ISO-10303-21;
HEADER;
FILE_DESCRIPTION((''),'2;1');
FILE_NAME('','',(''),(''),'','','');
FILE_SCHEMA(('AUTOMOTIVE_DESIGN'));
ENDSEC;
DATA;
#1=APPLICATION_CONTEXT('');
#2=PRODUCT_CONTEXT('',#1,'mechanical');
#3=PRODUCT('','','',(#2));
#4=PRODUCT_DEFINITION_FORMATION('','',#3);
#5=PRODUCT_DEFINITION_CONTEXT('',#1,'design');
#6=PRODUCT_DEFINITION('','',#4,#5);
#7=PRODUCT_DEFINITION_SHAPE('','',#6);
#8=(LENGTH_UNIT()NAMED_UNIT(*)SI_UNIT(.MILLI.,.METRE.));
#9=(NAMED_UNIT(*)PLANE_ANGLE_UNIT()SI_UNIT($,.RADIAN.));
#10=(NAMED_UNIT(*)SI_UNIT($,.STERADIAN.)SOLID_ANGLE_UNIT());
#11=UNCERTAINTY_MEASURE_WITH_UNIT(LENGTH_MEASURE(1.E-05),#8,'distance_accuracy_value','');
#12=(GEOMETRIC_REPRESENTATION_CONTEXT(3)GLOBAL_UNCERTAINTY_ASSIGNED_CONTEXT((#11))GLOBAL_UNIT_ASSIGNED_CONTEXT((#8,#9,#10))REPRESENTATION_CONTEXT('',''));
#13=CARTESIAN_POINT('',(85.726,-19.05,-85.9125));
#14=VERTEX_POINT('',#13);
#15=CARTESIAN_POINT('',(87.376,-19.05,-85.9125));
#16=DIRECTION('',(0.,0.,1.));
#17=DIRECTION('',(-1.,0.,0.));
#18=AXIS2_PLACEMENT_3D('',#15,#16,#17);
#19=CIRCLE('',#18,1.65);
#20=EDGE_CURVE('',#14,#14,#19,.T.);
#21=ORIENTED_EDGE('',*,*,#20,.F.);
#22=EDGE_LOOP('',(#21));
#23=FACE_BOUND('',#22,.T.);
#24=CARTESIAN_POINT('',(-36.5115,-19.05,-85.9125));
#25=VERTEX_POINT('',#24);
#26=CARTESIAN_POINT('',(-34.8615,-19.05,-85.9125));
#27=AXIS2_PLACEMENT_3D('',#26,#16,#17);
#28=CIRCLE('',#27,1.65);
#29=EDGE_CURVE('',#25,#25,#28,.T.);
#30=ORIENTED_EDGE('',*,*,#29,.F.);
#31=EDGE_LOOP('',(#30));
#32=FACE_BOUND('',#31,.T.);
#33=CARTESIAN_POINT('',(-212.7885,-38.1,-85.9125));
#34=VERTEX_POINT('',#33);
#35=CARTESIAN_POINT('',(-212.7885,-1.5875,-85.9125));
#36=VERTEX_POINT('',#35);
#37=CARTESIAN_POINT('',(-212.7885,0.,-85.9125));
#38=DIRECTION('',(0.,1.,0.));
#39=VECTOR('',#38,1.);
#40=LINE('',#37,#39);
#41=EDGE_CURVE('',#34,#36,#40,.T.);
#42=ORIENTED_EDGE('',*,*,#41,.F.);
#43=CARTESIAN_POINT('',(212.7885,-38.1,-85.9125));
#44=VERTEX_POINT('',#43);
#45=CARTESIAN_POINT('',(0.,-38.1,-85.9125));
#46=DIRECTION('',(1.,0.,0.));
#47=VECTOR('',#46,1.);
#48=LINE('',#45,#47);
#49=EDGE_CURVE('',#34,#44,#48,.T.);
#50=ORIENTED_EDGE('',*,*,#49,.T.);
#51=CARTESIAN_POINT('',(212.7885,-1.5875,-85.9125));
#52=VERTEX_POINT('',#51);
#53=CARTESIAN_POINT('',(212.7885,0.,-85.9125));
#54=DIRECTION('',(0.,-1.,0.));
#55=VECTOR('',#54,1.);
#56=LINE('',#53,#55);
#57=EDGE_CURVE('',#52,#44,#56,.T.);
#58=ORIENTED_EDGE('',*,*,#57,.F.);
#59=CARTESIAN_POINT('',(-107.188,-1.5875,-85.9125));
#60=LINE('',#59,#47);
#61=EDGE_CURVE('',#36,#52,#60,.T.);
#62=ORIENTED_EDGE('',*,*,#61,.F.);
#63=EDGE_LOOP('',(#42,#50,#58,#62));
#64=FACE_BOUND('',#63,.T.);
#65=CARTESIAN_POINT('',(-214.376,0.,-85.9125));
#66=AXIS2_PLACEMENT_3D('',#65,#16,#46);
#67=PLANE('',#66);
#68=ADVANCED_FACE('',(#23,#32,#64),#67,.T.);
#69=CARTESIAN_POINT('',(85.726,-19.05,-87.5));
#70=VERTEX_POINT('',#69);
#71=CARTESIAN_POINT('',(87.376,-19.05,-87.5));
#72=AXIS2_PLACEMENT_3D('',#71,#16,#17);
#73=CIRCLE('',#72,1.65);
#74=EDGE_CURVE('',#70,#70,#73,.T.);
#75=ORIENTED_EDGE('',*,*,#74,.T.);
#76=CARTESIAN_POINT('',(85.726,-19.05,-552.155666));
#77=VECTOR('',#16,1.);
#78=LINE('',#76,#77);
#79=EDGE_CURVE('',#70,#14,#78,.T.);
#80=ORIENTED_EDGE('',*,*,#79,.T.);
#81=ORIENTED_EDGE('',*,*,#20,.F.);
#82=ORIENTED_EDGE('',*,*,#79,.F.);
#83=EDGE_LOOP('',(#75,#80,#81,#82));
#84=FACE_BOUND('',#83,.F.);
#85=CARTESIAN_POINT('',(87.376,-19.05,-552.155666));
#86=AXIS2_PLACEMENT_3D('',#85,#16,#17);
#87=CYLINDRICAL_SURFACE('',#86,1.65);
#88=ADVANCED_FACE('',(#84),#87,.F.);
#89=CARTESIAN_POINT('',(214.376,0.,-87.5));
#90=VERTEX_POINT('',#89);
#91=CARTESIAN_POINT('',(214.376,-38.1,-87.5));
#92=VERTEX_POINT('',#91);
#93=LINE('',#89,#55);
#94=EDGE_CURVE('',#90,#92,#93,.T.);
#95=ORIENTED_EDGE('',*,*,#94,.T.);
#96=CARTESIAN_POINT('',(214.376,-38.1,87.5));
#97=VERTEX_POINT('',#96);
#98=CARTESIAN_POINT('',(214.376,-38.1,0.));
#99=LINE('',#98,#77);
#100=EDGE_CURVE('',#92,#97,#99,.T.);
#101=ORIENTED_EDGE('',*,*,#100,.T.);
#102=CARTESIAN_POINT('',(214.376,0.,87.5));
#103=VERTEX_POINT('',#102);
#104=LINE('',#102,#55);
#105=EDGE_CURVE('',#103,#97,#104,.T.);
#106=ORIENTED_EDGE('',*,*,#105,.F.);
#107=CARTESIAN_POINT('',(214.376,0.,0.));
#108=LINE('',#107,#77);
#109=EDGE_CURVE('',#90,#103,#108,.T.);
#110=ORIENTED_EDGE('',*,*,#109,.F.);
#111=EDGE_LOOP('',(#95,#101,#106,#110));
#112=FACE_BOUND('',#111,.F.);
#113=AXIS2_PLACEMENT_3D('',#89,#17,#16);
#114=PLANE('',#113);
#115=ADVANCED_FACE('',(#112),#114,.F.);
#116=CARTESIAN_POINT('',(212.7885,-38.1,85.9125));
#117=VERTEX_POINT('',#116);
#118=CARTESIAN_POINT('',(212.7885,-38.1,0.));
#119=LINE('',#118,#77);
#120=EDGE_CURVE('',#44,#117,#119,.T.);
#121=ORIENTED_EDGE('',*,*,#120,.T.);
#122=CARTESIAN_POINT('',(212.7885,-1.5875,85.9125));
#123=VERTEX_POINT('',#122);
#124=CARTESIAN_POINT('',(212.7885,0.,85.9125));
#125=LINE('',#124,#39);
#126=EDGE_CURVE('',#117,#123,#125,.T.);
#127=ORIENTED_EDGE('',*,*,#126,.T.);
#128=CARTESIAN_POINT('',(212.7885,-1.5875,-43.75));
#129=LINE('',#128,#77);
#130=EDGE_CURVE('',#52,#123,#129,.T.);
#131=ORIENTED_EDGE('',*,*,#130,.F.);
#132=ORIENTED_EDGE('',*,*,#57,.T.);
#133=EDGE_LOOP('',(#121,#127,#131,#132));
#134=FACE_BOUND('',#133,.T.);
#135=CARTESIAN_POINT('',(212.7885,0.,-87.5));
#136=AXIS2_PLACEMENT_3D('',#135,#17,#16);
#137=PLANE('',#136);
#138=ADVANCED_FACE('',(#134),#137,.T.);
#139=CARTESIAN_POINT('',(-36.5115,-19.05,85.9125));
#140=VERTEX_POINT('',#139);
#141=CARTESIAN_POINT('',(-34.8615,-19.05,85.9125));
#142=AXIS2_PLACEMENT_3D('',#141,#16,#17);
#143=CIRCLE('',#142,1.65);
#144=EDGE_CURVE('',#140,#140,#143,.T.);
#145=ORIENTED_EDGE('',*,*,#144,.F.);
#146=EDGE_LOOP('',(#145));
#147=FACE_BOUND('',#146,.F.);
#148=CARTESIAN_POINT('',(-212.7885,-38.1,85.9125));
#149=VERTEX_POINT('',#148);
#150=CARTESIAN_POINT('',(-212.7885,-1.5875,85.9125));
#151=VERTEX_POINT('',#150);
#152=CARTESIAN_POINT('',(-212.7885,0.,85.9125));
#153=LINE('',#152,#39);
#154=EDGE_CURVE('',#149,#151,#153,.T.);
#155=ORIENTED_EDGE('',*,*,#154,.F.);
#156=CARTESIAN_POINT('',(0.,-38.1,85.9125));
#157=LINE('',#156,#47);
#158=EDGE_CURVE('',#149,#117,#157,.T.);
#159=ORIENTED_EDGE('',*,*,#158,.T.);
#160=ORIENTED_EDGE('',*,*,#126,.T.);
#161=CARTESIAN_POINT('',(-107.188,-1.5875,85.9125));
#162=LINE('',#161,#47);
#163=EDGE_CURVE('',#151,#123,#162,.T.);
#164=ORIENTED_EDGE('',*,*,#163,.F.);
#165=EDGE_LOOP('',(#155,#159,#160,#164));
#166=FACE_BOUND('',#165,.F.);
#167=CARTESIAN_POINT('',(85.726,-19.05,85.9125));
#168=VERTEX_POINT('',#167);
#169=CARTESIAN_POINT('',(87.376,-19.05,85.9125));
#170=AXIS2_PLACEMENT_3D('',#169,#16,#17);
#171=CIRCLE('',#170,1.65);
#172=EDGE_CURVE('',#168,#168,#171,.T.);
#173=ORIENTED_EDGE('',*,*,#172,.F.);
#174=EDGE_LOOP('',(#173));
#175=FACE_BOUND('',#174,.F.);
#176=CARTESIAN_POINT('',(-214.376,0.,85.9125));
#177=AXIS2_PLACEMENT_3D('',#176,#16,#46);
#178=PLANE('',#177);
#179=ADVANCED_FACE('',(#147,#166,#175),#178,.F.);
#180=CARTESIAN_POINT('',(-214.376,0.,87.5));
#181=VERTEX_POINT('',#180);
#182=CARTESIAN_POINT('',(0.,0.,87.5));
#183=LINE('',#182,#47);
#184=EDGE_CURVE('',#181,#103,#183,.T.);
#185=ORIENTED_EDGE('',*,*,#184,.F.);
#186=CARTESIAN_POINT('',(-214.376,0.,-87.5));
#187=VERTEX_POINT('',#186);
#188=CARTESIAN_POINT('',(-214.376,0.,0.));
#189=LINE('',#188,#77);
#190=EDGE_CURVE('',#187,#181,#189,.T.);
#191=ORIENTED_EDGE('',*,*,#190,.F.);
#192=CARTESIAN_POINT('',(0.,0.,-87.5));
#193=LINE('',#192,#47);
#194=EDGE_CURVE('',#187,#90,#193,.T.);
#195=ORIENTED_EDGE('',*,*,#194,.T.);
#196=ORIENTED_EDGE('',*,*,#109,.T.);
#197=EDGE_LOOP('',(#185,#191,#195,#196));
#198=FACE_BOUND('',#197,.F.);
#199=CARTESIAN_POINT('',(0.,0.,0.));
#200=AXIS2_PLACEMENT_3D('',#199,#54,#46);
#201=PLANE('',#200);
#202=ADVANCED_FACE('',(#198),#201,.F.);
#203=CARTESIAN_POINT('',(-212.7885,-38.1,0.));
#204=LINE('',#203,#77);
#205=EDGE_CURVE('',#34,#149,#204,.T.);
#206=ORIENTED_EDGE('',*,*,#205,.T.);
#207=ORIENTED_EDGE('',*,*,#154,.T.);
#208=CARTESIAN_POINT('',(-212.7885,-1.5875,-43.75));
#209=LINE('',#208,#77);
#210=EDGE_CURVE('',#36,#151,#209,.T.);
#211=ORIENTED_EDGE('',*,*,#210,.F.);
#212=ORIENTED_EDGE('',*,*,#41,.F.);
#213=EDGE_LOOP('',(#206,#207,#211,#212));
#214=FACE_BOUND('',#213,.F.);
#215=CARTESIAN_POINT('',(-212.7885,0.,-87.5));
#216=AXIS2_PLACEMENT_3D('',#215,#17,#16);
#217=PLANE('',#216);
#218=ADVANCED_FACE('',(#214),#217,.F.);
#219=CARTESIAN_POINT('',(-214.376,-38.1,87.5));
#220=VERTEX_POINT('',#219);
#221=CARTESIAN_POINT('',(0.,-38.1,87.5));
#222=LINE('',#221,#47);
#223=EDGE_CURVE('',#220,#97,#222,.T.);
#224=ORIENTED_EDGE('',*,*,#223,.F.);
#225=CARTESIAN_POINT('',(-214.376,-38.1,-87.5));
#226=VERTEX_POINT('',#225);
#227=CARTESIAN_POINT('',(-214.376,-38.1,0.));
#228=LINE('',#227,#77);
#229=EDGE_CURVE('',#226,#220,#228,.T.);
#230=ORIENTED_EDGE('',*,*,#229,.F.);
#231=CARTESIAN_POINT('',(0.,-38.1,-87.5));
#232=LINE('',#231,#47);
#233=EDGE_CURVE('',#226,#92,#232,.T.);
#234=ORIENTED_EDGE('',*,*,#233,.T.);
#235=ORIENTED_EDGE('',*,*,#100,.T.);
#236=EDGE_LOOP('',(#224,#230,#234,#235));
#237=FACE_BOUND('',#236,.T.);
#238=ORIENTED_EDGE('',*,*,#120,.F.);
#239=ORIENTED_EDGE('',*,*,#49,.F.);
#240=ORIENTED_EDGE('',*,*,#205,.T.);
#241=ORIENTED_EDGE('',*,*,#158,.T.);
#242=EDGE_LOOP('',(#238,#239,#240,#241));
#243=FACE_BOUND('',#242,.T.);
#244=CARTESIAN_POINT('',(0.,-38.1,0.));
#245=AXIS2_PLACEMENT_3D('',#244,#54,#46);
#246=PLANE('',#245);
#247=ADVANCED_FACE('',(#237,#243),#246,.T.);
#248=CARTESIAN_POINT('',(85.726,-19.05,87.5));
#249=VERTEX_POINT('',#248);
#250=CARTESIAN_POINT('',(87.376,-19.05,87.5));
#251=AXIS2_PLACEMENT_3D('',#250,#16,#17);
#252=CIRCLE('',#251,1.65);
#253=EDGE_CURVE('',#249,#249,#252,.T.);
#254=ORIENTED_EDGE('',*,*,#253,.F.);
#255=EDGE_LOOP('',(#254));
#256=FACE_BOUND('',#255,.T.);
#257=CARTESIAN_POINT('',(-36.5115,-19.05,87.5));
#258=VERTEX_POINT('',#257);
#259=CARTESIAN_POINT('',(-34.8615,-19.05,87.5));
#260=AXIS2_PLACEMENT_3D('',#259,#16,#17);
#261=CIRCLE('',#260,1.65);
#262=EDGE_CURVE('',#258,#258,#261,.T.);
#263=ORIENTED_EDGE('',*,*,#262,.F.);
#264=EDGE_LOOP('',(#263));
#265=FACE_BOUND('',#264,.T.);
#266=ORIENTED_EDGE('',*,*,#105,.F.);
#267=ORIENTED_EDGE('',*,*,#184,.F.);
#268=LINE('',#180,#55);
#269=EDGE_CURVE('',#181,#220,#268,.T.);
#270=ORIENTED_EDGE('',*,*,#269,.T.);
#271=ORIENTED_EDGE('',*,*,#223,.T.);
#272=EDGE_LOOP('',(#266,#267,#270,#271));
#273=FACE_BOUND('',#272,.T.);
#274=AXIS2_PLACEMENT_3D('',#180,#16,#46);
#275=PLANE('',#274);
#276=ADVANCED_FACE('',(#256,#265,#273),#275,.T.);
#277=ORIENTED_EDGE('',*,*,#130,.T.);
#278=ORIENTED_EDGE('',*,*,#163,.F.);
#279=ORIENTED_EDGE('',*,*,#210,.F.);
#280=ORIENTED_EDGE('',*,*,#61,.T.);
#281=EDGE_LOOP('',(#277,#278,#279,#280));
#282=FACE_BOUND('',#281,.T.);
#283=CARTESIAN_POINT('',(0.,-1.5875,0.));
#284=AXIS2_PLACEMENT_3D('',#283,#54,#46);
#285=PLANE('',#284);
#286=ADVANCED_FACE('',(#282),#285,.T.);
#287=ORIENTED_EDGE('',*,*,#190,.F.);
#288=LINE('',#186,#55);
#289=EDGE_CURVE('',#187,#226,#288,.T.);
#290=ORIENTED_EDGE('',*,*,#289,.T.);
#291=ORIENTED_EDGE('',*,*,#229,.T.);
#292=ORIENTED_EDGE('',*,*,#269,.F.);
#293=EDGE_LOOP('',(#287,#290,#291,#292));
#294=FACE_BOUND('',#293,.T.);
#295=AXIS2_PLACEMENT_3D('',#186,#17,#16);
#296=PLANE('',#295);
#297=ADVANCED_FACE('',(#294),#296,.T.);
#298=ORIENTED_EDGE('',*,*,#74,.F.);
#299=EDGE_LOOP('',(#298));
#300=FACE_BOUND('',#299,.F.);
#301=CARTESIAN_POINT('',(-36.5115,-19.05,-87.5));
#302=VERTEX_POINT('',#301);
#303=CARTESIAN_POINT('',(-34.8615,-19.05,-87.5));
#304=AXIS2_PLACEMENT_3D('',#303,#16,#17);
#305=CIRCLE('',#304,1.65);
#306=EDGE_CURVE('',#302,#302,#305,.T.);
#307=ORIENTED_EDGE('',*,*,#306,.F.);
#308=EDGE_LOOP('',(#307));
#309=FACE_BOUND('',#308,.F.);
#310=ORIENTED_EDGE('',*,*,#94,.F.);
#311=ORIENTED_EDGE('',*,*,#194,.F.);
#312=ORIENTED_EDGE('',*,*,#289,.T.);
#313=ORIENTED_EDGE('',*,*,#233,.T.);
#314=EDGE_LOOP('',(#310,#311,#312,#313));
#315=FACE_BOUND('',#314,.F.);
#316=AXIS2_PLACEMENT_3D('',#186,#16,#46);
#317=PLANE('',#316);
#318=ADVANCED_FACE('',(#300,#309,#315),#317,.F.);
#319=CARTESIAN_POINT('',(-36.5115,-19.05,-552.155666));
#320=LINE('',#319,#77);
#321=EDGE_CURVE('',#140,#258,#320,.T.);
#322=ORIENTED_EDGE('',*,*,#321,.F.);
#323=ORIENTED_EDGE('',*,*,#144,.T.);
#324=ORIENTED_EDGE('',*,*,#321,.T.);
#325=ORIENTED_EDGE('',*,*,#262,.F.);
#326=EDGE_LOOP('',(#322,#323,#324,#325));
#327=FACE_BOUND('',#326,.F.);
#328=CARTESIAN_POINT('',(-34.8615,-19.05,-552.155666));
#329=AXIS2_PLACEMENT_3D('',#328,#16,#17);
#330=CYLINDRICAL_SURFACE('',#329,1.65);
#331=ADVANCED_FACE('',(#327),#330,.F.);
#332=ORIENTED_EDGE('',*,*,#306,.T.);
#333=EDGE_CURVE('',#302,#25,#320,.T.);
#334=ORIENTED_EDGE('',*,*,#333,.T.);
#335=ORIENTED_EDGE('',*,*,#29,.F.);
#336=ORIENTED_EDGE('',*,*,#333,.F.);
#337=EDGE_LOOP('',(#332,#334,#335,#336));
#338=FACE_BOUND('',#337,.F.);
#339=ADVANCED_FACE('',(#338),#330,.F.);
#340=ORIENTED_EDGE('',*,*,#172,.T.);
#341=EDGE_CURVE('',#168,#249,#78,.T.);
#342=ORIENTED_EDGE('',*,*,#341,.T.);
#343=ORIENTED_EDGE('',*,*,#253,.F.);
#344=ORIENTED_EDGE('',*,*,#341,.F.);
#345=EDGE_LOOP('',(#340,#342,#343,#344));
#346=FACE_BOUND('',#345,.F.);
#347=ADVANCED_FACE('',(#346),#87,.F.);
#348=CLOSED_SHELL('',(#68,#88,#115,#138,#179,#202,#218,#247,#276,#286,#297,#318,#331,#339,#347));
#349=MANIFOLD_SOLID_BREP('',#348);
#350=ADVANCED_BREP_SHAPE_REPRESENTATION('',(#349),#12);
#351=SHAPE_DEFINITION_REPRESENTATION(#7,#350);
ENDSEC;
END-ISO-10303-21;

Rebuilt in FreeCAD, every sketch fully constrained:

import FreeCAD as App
import Part
import Sketcher
from FreeCAD import Vector
Q = App.Units.Quantity


def faces_at(feature, points):
    """Names of the faces that lie closest to the given points."""
    faces = feature.Shape.Faces
    near = lambda p: min(range(len(faces)), key=lambda i: faces[i].distToShape(Part.Vertex(*p))[0])
    return sorted({f"Face{near(p) + 1}" for p in points})


def add_polygon(sketch, points):
    """Adds a closed chain of lines whose ends are joined by coincident constraints."""
    first, n = sketch.GeometryCount, len(points)
    for a, b in zip(points, points[1:] + points[:1]):
        sketch.addGeometry(Part.LineSegment(App.Vector(*a, 0), App.Vector(*b, 0)), False)
    for i in range(n):
        sketch.addConstraint(Sketcher.Constraint("Coincident", first + i, 2, first + (i + 1) % n, 1))

doc = App.newDocument("Part")
body = doc.addObject("PartDesign::Body", "Body")

# Sketch on XZ plane
sketch1 = doc.addObject("Sketcher::SketchObject", "Sketch")
body.addObject(sketch1)
sketch1.AttachmentSupport = (doc.XZ_Plane, [""])
sketch1.MapMode = "FlatFace"
add_polygon(sketch1, [(-214, 88), (-214, -88), (214, -88), (214, 88)])  # lines 0-3
sketch1.addConstraint([
    Sketcher.Constraint("Vertical", 0),
    Sketcher.Constraint("Horizontal", 1),
    Sketcher.Constraint("Vertical", 2),
    Sketcher.Constraint("Horizontal", 3),
    Sketcher.Constraint("Symmetric", 0, 2, 2, 2, -1, 1),
    Sketcher.Constraint("DistanceX", 1, 1, 1, 2, Q("16.88 in")),
    Sketcher.Constraint("DistanceY", 0, 2, 0, 1, Q("175 mm")),
])
pad1 = doc.addObject("PartDesign::Pad", "Pad")
body.addObject(pad1)
pad1.Profile = sketch1
pad1.Length = Q("1.5 in")
doc.recompute()

thickness = doc.addObject("PartDesign::Thickness", "Thickness")
body.addObject(thickness)
thickness.Base = (pad1, faces_at(pad1, [(0, -38.1, 0)]))
thickness.Value = Q("0.0625 in")
thickness.Reversed = True
thickness.Join = "Arc"

# Sketch on XY plane
sketch2 = doc.addObject("Sketcher::SketchObject", "Sketch001")
body.addObject(sketch2)
sketch2.AttachmentSupport = (doc.XY_Plane, [""])
sketch2.MapMode = "FlatFace"
sketch2.AttachmentOffset = App.Placement(Vector(0, 0, -87.5), App.Rotation())
sketch2.addGeometry([
    Part.Circle(Vector(-34.9, -19.1, 0), Vector(0, 0, 1), 1.6),
    Part.Circle(Vector(87.4, -19.1, 0), Vector(0, 0, 1), 1.6),
], False)
sketch2.addConstraint([
    Sketcher.Constraint("Equal", 0, 1),
    Sketcher.Constraint("Horizontal", 0, 3, 1, 3),
    Sketcher.Constraint("Diameter", 0, Q("3.3 mm")),
    Sketcher.Constraint("DistanceY", 0, 3, -1, 1, Q("0.75 in")),
    Sketcher.Constraint("DistanceX", -1, 1, 1, 3, Q("3.44 in")),
    Sketcher.Constraint("DistanceX", 0, 3, 1, 3, Q("4.8125 in")),
])
doc.recompute()
hole = doc.addObject("PartDesign::Hole", "Hole")
body.addObject(hole)
hole.Profile = sketch2
hole.ThreadType = "None"
hole.Diameter = 3.3
hole.DepthType = "ThroughAll"
hole.Reversed = True

doc.recompute()
